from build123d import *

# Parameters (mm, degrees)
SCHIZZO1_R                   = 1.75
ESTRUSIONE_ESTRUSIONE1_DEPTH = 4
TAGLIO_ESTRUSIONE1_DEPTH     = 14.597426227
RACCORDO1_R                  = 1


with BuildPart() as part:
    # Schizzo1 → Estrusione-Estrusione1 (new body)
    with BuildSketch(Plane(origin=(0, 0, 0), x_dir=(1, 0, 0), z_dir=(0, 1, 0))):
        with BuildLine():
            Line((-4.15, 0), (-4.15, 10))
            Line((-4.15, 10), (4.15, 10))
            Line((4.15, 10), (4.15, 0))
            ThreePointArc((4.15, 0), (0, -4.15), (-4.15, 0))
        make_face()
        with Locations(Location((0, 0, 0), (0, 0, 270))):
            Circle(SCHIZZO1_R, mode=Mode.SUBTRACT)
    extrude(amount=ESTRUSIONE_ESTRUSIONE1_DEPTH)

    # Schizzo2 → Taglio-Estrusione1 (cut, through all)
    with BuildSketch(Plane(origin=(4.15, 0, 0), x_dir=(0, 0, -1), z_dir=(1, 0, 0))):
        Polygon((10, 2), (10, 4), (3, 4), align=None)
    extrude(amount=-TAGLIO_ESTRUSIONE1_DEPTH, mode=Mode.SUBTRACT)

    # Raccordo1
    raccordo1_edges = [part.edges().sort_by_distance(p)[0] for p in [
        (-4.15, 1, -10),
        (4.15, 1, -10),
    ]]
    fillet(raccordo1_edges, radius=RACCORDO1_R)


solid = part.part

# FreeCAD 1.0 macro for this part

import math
import FreeCAD as App
import Part
import Sketcher
from FreeCAD import Vector
Q = App.Units.Quantity


def edges_at(feature, points):
    """Names of the edges that pass closest to the given points."""
    edges = feature.Shape.Edges
    near = lambda p: min(range(len(edges)), key=lambda i: edges[i].distToShape(Part.Vertex(*p))[0])
    return sorted({f"Edge{near(p) + 1}" for p in points})

doc = App.newDocument("Part")
body = doc.addObject("PartDesign::Body", "Body")

# Sketch on XZ plane
sketch1 = body.newObject("Sketcher::SketchObject", "Sketch")
sketch1.AttachmentSupport = (doc.getObject("XZ_Plane"), [""])
sketch1.MapMode = "FlatFace"
sketch1.addGeometry(Part.LineSegment(Vector(-4.15, -10, 0), Vector(-4.15, 0, 0)), False)
sketch1.addGeometry(Part.ArcOfCircle(Part.Circle(Vector(0, 0, 0), Vector(0, 0, 1), 4.15), math.radians(0), math.radians(180)), False)
sketch1.addGeometry(Part.LineSegment(Vector(4.15, 0, 0), Vector(4.15, -10, 0)), False)
sketch1.addGeometry(Part.LineSegment(Vector(4.15, -10, 0), Vector(-4.15, -10, 0)), False)
sketch1.addGeometry(Part.Circle(Vector(0, 0, 0), Vector(0, 0, 1), 1.75), False)
sketch1.addConstraint(Sketcher.Constraint("Tangent", 0, 2, 1, 2))
sketch1.addConstraint(Sketcher.Constraint("Tangent", 1, 1, 2, 1))
sketch1.addConstraint(Sketcher.Constraint("Coincident", 2, 2, 3, 1))
sketch1.addConstraint(Sketcher.Constraint("Coincident", 3, 2, 0, 1))
sketch1.addConstraint(Sketcher.Constraint("Vertical", 0))
sketch1.addConstraint(Sketcher.Constraint("Vertical", 2))
sketch1.addConstraint(Sketcher.Constraint("Horizontal", 3))
sketch1.addConstraint(Sketcher.Constraint("Coincident", 1, 3, -1, 1))
sketch1.addConstraint(Sketcher.Constraint("Coincident", 4, 3, -1, 1))
sketch1.addConstraint(Sketcher.Constraint("Diameter", 4, Q("3.5 mm")))
sketch1.addConstraint(Sketcher.Constraint("DistanceY", 0, 1, 0, 2, Q("10 mm")))
sketch1.addConstraint(Sketcher.Constraint("Radius", 1, Q("4.15 mm")))
pad1 = body.newObject("PartDesign::Pad", "Pad")
pad1.Profile = sketch1
pad1.Length = 4
pad1.Reversed = True

# Sketch on YZ plane
sketch2 = body.newObject("Sketcher::SketchObject", "Sketch001")
sketch2.AttachmentSupport = (doc.getObject("YZ_Plane"), [""])
sketch2.MapMode = "FlatFace"
sketch2.AttachmentOffset = App.Placement(Vector(0, 0, 4.15), App.Rotation())
sketch2.addGeometry(Part.LineSegment(Vector(2, -10, 0), Vector(4, -10, 0)), False)
sketch2.addGeometry(Part.LineSegment(Vector(4, -10, 0), Vector(4, -3, 0)), False)
sketch2.addGeometry(Part.LineSegment(Vector(4, -3, 0), Vector(2, -10, 0)), False)
sketch2.addConstraint(Sketcher.Constraint("Coincident", 0, 2, 1, 1))
sketch2.addConstraint(Sketcher.Constraint("Coincident", 1, 2, 2, 1))
sketch2.addConstraint(Sketcher.Constraint("Coincident", 2, 2, 0, 1))
sketch2.addConstraint(Sketcher.Constraint("Horizontal", 0))
sketch2.addConstraint(Sketcher.Constraint("Vertical", 1))
sketch2.addConstraint(Sketcher.Constraint("DistanceX", 0, 1, 0, 2, Q("2 mm")))
sketch2.addConstraint(Sketcher.Constraint("DistanceY", 1, 1, 1, 2, Q("7 mm")))
sketch2.addConstraint(Sketcher.Constraint("DistanceX", -1, 1, 0, 2, Q("4 mm")))
sketch2.addConstraint(Sketcher.Constraint("DistanceY", 0, 2, -1, 1, Q("10 mm")))
pocket1 = body.newObject("PartDesign::Pocket", "Pocket")
pocket1.Profile = sketch2
pocket1.Type = "ThroughAll"
doc.recompute()

fillet = body.newObject("PartDesign::Fillet", "Fillet")
fillet.Base = (pocket1, edges_at(pocket1, [(-4.15, 1, -10), (4.15, 1, -10)]))
fillet.Radius = 1

doc.recompute()
